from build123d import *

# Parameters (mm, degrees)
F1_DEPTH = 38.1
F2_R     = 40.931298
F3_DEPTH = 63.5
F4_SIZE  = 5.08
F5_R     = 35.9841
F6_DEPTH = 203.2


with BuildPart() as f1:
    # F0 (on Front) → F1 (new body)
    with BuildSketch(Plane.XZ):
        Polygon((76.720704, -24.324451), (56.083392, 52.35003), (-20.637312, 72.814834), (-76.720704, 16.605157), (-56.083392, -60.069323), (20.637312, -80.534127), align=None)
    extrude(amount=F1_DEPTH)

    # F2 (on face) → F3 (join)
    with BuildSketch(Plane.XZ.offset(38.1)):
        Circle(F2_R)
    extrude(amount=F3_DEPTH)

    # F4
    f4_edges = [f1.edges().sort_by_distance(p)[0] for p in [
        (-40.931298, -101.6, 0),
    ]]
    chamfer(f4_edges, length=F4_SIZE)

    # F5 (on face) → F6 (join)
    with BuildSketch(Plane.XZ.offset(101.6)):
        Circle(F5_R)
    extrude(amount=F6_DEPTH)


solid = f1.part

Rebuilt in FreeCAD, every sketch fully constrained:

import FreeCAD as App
import Part
import Sketcher
Q = App.Units.Quantity


def edges_at(feature, points):
    """Names of the edges that pass closest to the given points."""
    edges = feature.Shape.Edges
    near = lambda p: min(range(len(edges)), key=lambda i: edges[i].distToShape(Part.Vertex(*p))[0])
    return sorted({f"Edge{near(p) + 1}" for p in points})

doc = App.newDocument("Part")
params = doc.addObject("Spreadsheet::Sheet", "Params")
for row, (alias, value) in enumerate([
    ("pad1_length", "1.5 in"),
    ("pad2_length", "2.5 in"),
    ("chamfer_size", "0.2 in"),
    ("pad3_length", "8 in"),
], start=1):
    params.set(f"A{row}", alias)
    params.set(f"B{row}", "=" + value)
    params.setAlias(f"B{row}", alias)

body = doc.addObject("PartDesign::Body", "Body")

# Sketch on XZ plane
sketch1 = body.newObject("Sketcher::SketchObject", "Sketch")
sketch1.AttachmentSupport = (doc.getObject("XZ_Plane"), [""])
sketch1.MapMode = "FlatFace"
sketch1.addGeometry([
    Part.LineSegment(App.Vector(76.720704, -24.324451, 0), App.Vector(56.083392, 52.35003, 0)),  # 0
    Part.LineSegment(App.Vector(56.083392, 52.35003, 0), App.Vector(-20.637312, 72.814834, 0)),  # 1
    Part.LineSegment(App.Vector(-20.637312, 72.814834, 0), App.Vector(-76.720704, 16.605157, 0)),  # 2
    Part.LineSegment(App.Vector(-76.720704, 16.605157, 0), App.Vector(-56.083392, -60.069323, 0)),  # 3
    Part.LineSegment(App.Vector(-56.083392, -60.069323, 0), App.Vector(20.637312, -80.534127, 0)),  # 4
    Part.LineSegment(App.Vector(20.637312, -80.534127, 0), App.Vector(76.720704, -24.324451, 0)),  # 5
], False)
sketch1.addConstraint([
    Sketcher.Constraint("Coincident", 0, 2, 1, 1),
    Sketcher.Constraint("Coincident", 1, 2, 2, 1),
    Sketcher.Constraint("Coincident", 2, 2, 3, 1),
    Sketcher.Constraint("Coincident", 3, 2, 4, 1),
    Sketcher.Constraint("Coincident", 4, 2, 5, 1),
    Sketcher.Constraint("Coincident", 5, 2, 0, 1),
    Sketcher.Constraint("Parallel", 0, 3),
    Sketcher.Constraint("Parallel", 1, 4),
    Sketcher.Constraint("Parallel", 2, 5),
    Sketcher.Constraint("Equal", 0, 1),
    Sketcher.Constraint("Equal", 1, 2),
    Sketcher.Constraint("Equal", 2, 3),
    Sketcher.Constraint("DistanceX", 2, 2, -1, 1, Q("3.0205002 in")),
    Sketcher.Constraint("DistanceX", -1, 1, 5, 2, Q("3.0205002 in")),
    Sketcher.Constraint("DistanceX", 1, 2, 0, 2, Q("3.0205002 in")),
    Sketcher.Constraint("Distance", 0, Q("79.403241 mm")),
    Sketcher.Constraint("DistanceY", -1, 1, 0, 2, Q("52.35003 mm")),
    Sketcher.Constraint("DistanceY", 5, 2, -1, 1, Q("24.324451 mm")),
])
pad1 = body.newObject("PartDesign::Pad", "Pad")
pad1.Profile = sketch1
pad1.setExpression("Length", "Params.pad1_length")

# Sketch on XZ plane
sketch2 = body.newObject("Sketcher::SketchObject", "Sketch001")
sketch2.AttachmentSupport = (doc.getObject("XZ_Plane"), [""])
sketch2.MapMode = "FlatFace"
sketch2.AttachmentOffset = App.Placement(App.Vector(0, 0, 1.5 * 25.4), App.Rotation())
sketch2.addGeometry(Part.Circle(App.Vector(0, 0, 0), App.Vector(0, 0, 1), 40.931298), False)
sketch2.addConstraint([
    Sketcher.Constraint("Coincident", 0, 3, -1, 1),
    Sketcher.Constraint("Diameter", 0, Q("81.862596 mm")),
])
pad2 = body.newObject("PartDesign::Pad", "Pad001")
pad2.Profile = sketch2
pad2.setExpression("Length", "Params.pad2_length")
doc.recompute()

chamfer = body.newObject("PartDesign::Chamfer", "Chamfer")
chamfer.Base = (pad2, edges_at(pad2, [(-40.931, -101.6, 0)]))
chamfer.setExpression("Size", "Params.chamfer_size")

# Sketch on XZ plane
sketch3 = body.newObject("Sketcher::SketchObject", "Sketch002")
sketch3.AttachmentSupport = (doc.getObject("XZ_Plane"), [""])
sketch3.MapMode = "FlatFace"
sketch3.AttachmentOffset = App.Placement(App.Vector(0, 0, 4 * 25.4), App.Rotation())
sketch3.addGeometry(Part.Circle(App.Vector(0, 0, 0), App.Vector(0, 0, 1), 35.9841), False)
sketch3.addConstraint([
    Sketcher.Constraint("Coincident", 0, 3, -1, 1),
    Sketcher.Constraint("Diameter", 0, Q("71.9682 mm")),
])
pad3 = body.newObject("PartDesign::Pad", "Pad002")
pad3.Profile = sketch3
pad3.setExpression("Length", "Params.pad3_length")

doc.recompute()
